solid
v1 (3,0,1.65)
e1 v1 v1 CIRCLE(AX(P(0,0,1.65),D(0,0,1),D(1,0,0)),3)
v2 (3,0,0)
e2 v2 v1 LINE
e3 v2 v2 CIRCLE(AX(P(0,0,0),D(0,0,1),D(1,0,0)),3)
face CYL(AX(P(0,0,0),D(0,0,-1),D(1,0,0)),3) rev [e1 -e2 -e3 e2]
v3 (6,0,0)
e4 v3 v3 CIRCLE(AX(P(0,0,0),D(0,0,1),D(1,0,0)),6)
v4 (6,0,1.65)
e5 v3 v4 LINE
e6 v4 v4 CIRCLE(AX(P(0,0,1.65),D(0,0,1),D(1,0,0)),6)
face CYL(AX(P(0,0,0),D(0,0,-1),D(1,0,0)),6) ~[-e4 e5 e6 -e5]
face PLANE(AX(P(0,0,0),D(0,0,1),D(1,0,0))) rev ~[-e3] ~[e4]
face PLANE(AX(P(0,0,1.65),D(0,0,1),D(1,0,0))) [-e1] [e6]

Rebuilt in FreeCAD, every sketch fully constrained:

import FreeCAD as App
import Part
import Sketcher
Q = App.Units.Quantity

doc = App.newDocument("Part")
body = doc.addObject("PartDesign::Body", "Body")

sketch1 = body.newObject("Sketcher::SketchObject", "Sketch")
sketch1.AttachmentSupport = (doc.getObject("XY_Plane"), [""])
sketch1.MapMode = "FlatFace"
sketch1.addGeometry([
    Part.Circle(App.Vector(0, 0, 0), App.Vector(0, 0, 1), 6),
    Part.Circle(App.Vector(0, 0, 0), App.Vector(0, 0, 1), 3),
], False)
sketch1.addConstraint([
    Sketcher.Constraint("Coincident", 0, 3, -1, 1),
    Sketcher.Constraint("Coincident", 1, 3, -1, 1),
    Sketcher.Constraint("Diameter", 0, Q("12 mm")),
    Sketcher.Constraint("Diameter", 1, Q("6 mm")),
])
pad1 = body.newObject("PartDesign::Pad", "Pad")
pad1.Profile = sketch1
pad1.Length = 1.65

doc.recompute()
